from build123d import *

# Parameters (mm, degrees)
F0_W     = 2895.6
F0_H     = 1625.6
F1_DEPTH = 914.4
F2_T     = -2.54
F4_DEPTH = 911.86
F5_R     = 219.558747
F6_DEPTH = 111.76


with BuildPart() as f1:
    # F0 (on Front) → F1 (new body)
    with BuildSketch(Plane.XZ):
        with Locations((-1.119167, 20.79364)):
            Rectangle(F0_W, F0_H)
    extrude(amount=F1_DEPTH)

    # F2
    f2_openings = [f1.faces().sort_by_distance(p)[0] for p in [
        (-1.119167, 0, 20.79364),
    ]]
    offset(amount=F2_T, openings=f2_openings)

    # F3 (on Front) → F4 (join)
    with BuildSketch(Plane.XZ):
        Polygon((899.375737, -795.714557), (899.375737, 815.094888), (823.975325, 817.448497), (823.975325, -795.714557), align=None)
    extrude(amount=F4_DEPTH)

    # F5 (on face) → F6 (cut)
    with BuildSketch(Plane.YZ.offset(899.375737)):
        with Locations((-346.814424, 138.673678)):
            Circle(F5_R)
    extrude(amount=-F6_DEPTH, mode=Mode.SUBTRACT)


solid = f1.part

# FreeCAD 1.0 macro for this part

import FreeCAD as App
import Part
import Sketcher
from FreeCAD import Vector
Q = App.Units.Quantity


def faces_at(feature, points):
    """Names of the faces that lie closest to the given points."""
    faces = feature.Shape.Faces
    near = lambda p: min(range(len(faces)), key=lambda i: faces[i].distToShape(Part.Vertex(*p))[0])
    return sorted({f"Face{near(p) + 1}" for p in points})


def add_polygon(sketch, points):
    """Adds a closed chain of lines whose ends are joined by coincident constraints."""
    first, n = sketch.GeometryCount, len(points)
    for a, b in zip(points, points[1:] + points[:1]):
        sketch.addGeometry(Part.LineSegment(App.Vector(*a, 0), App.Vector(*b, 0)), False)
    for i in range(n):
        sketch.addConstraint(Sketcher.Constraint("Coincident", first + i, 2, first + (i + 1) % n, 1))

doc = App.newDocument("Part")
body = doc.addObject("PartDesign::Body", "Body")

sketch1 = doc.addObject("Sketcher::SketchObject", "Sketch")
body.addObject(sketch1)
sketch1.AttachmentSupport = (doc.XZ_Plane, [""])
sketch1.MapMode = "FlatFace"
add_polygon(sketch1, [(-1449, 834), (-1449, -792), (1447, -792), (1447, 834)])
sketch1.addConstraint([
    Sketcher.Constraint("Vertical", 0),
    Sketcher.Constraint("Horizontal", 1),
    Sketcher.Constraint("Vertical", 2),
    Sketcher.Constraint("Horizontal", 3),
    Sketcher.Constraint("DistanceX", 1, 1, 1, 2, Q("114 in")),
    Sketcher.Constraint("DistanceY", 0, 2, 0, 1, Q("64 in")),
    Sketcher.Constraint("DistanceY", 0, 2, -1, 1, 792.00636),
    Sketcher.Constraint("DistanceX", 0, 2, -1, 1, 1448.919167),
])
pad1 = doc.addObject("PartDesign::Pad", "Pad")
body.addObject(pad1)
pad1.Profile = sketch1
pad1.Length = Q("36 in")
doc.recompute()

thickness = doc.addObject("PartDesign::Thickness", "Thickness")
body.addObject(thickness)
thickness.Base = (pad1, faces_at(pad1, [(-1.119, 0, 20.794)]))
thickness.Value = Q("0.1 in")
thickness.Reversed = True
thickness.Join = "Arc"

sketch2 = doc.addObject("Sketcher::SketchObject", "Sketch001")
body.addObject(sketch2)
sketch2.AttachmentSupport = (doc.XZ_Plane, [""])
sketch2.MapMode = "FlatFace"
add_polygon(sketch2, [(899, -796), (899, 815), (824, 817), (824, -796)])
sketch2.addConstraint([
    Sketcher.Constraint("Vertical", 0),
    Sketcher.Constraint("Vertical", 2),
    Sketcher.Constraint("Horizontal", 3),
    Sketcher.Constraint("DistanceX", 3, 1, 3, 2, 75.400412),
    Sketcher.Constraint("DistanceY", 0, 1, 0, 2, 1610.809445),
    Sketcher.Constraint("DistanceY", 2, 2, 2, 1, 1613.163054),
    Sketcher.Constraint("DistanceY", -1, 1, 0, 2, 815.094888),
    Sketcher.Constraint("DistanceX", -1, 1, 0, 2, 899.375737),
])
pad2 = doc.addObject("PartDesign::Pad", "Pad001")
body.addObject(pad2)
pad2.Profile = sketch2
pad2.Length = Q("35.9 in")

sketch3 = doc.addObject("Sketcher::SketchObject", "Sketch002")
body.addObject(sketch3)
sketch3.AttachmentSupport = (doc.YZ_Plane, [""])
sketch3.MapMode = "FlatFace"
sketch3.AttachmentOffset = App.Placement(Vector(0, 0, 899.375737), App.Rotation())
sketch3.addGeometry(Part.Circle(Vector(-347, 139, 0), Vector(0, 0, 1), 220), False)
sketch3.addConstraint([
    Sketcher.Constraint("Diameter", 0, 439.117494),
    Sketcher.Constraint("DistanceY", -1, 1, 0, 3, 138.673678),
    Sketcher.Constraint("DistanceX", 0, 3, -1, 1, 346.814424),
])
pocket1 = doc.addObject("PartDesign::Pocket", "Pocket")
body.addObject(pocket1)
pocket1.Profile = sketch3
pocket1.Length = Q("4.4 in")

doc.recompute()
